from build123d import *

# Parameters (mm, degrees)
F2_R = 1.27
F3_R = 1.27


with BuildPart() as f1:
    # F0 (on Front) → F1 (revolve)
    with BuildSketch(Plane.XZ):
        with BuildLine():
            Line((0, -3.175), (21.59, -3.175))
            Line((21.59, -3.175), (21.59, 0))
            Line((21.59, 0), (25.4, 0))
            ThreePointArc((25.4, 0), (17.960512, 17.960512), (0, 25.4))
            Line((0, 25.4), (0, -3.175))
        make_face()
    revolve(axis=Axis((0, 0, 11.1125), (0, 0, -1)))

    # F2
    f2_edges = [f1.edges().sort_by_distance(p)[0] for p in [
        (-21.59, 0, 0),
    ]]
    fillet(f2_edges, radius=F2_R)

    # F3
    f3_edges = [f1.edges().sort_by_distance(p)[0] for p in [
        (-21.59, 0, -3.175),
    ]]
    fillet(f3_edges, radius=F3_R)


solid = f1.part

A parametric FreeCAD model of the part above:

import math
import FreeCAD as App
import Part
import Sketcher
Q = App.Units.Quantity


def edges_at(feature, points):
    """Names of the edges that pass closest to the given points."""
    edges = feature.Shape.Edges
    near = lambda p: min(range(len(edges)), key=lambda i: edges[i].distToShape(Part.Vertex(*p))[0])
    return sorted({f"Edge{near(p) + 1}" for p in points})

doc = App.newDocument("Part")
params = doc.addObject("Spreadsheet::Sheet", "Params")
for row, (alias, value) in enumerate([
    ("sketch1_radius", "1 in"),
    ("sketch1_width", "0.85 in"),
    ("sketch1_height", "0.125 in"),
    ("revolution_angle", "360 deg"),
    ("fillet_radius", "0.05 in"),
    ("fillet2_radius", "0.05 in"),
], start=1):
    params.set(f"A{row}", alias)
    params.set(f"B{row}", "=" + value)
    params.setAlias(f"B{row}", alias)

body = doc.addObject("PartDesign::Body", "Body")

sketch1 = doc.addObject("Sketcher::SketchObject", "Sketch")
body.addObject(sketch1)
sketch1.AttachmentSupport = (doc.XZ_Plane, [""])
sketch1.MapMode = "FlatFace"
sketch1.addGeometry([
    Part.LineSegment(App.Vector(0, -3.2, 0), App.Vector(21.6, -3.2, 0)),
    Part.LineSegment(App.Vector(21.6, -3.2, 0), App.Vector(21.6, 0, 0)),
    Part.LineSegment(App.Vector(21.6, 0, 0), App.Vector(25.4, 0, 0)),
    Part.ArcOfCircle(Part.Circle(App.Vector(0, 0, 0), App.Vector(0, 0, 1), 25.4), math.radians(0), math.radians(90)),
    Part.LineSegment(App.Vector(0, 25.4, 0), App.Vector(0, -3.2, 0)),
], False)
sketch1.addConstraint([
    Sketcher.Constraint("Coincident", 0, 2, 1, 1),
    Sketcher.Constraint("Coincident", 1, 2, 2, 1),
    Sketcher.Constraint("Coincident", 2, 2, 3, 1),
    Sketcher.Constraint("Coincident", 3, 2, 4, 1),
    Sketcher.Constraint("Coincident", 4, 2, 0, 1),
    Sketcher.Constraint("Horizontal", 0),
    Sketcher.Constraint("Vertical", 1),
    Sketcher.Constraint("Horizontal", 2),
    Sketcher.Constraint("Vertical", 4),
    Sketcher.Constraint("Coincident", 3, 3, -1, 1),
    Sketcher.Constraint("PointOnObject", 1, 2, -1),
    Sketcher.Constraint("PointOnObject", 3, 2, -2),
    Sketcher.Constraint("Radius", 3, Q("1 in")),
    Sketcher.Constraint("DistanceX", 0, 1, 0, 2, Q("0.85 in")),
    Sketcher.Constraint("DistanceY", 1, 1, 1, 2, Q("0.125 in")),
])
sketch1.setExpression("Constraints[12]", "Params.sketch1_radius")
sketch1.setExpression("Constraints[13]", "Params.sketch1_width")
sketch1.setExpression("Constraints[14]", "Params.sketch1_height")
revolution = doc.addObject("PartDesign::Revolution", "Revolution")
body.addObject(revolution)
revolution.Profile = sketch1
revolution.ReferenceAxis = (sketch1, ["V_Axis"])
revolution.setExpression("Angle", "Params.revolution_angle")
doc.recompute()

fillet = doc.addObject("PartDesign::Fillet", "Fillet")
body.addObject(fillet)
fillet.Base = (revolution, edges_at(revolution, [(-21.59, 0, 0)]))
fillet.setExpression("Radius", "Params.fillet_radius")
doc.recompute()

fillet2 = doc.addObject("PartDesign::Fillet", "Fillet001")
body.addObject(fillet2)
fillet2.Base = (fillet, edges_at(fillet, [(-21.59, 0, -3.175)]))
fillet2.setExpression("Radius", "Params.fillet2_radius")

doc.recompute()
